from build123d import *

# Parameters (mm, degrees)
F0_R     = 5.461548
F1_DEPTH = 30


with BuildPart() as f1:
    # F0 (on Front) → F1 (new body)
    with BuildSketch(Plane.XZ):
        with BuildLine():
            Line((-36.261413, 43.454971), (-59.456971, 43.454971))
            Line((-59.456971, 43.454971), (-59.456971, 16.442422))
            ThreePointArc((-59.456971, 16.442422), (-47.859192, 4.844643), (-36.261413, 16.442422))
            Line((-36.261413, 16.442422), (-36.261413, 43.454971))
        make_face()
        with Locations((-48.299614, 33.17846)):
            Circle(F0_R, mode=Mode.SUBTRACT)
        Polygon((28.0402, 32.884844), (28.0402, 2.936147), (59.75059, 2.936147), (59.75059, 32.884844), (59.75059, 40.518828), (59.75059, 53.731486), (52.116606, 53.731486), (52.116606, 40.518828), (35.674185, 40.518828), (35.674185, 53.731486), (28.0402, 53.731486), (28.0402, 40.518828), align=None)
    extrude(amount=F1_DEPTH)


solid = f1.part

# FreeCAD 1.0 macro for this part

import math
import FreeCAD as App
import Part
import Sketcher


def add_polygon(sketch, points):
    """Adds a closed chain of lines whose ends are joined by coincident constraints."""
    first, n = sketch.GeometryCount, len(points)
    for a, b in zip(points, points[1:] + points[:1]):
        sketch.addGeometry(Part.LineSegment(App.Vector(*a, 0), App.Vector(*b, 0)), False)
    for i in range(n):
        sketch.addConstraint(Sketcher.Constraint("Coincident", first + i, 2, first + (i + 1) % n, 1))

doc = App.newDocument("Part")
params = doc.addObject("Spreadsheet::Sheet", "Params")
for row, (alias, value) in enumerate([
    ("pad1_length", "30 mm"),
], start=1):
    params.set(f"A{row}", alias)
    params.set(f"B{row}", "=" + value)
    params.setAlias(f"B{row}", alias)

body = doc.addObject("PartDesign::Body", "Body")
body.AllowCompound = True

# Sketch on XZ plane
sketch1 = body.newObject("Sketcher::SketchObject", "Sketch")
sketch1.AttachmentSupport = (doc.getObject("XZ_Plane"), [""])
sketch1.MapMode = "FlatFace"
sketch1.addGeometry(Part.LineSegment(App.Vector(-36.261413, 43.454971, 0), App.Vector(-59.456971, 43.454971, 0)), False)  # 0
sketch1.addGeometry(Part.LineSegment(App.Vector(-59.456971, 43.454971, 0), App.Vector(-59.456971, 16.442422, 0)), False)  # 1
sketch1.addGeometry(Part.ArcOfCircle(Part.Circle(App.Vector(-47.859192, 16.442422, 0), App.Vector(0, 0, 1), 11.597779), math.radians(180), math.radians(360)), False)  # 2
sketch1.addGeometry(Part.LineSegment(App.Vector(-36.261413, 16.442422, 0), App.Vector(-36.261413, 43.454971, 0)), False)  # 3
sketch1.addGeometry(Part.Circle(App.Vector(-48.299614, 33.17846, 0), App.Vector(0, 0, 1), 5.461548), False)  # 4
add_polygon(sketch1, [(28.0402, 2.936147), (59.75059, 2.936147), (59.75059, 53.731486), (52.116606, 53.731486), (52.116606, 40.518828), (35.674185, 40.518828), (35.674185, 53.731486), (28.0402, 53.731486)])  # lines 5-12
sketch1.addConstraint([
    Sketcher.Constraint("Coincident", 0, 2, 1, 1),
    Sketcher.Constraint("Tangent", 1, 2, 2, 1),
    Sketcher.Constraint("Tangent", 2, 2, 3, 1),
    Sketcher.Constraint("Coincident", 3, 2, 0, 1),
    Sketcher.Constraint("Horizontal", 0),
    Sketcher.Constraint("Vertical", 1),
    Sketcher.Constraint("Vertical", 3),
    Sketcher.Constraint("Horizontal", 5),
    Sketcher.Constraint("Vertical", 6),
    Sketcher.Constraint("Horizontal", 7),
    Sketcher.Constraint("Vertical", 8),
    Sketcher.Constraint("Horizontal", 9),
    Sketcher.Constraint("Vertical", 10),
    Sketcher.Constraint("Horizontal", 11),
    Sketcher.Constraint("Vertical", 12),
    Sketcher.Constraint("Horizontal", 7, 2, 10, 2),
    Sketcher.Constraint("Equal", 7, 11),
    Sketcher.Constraint("Radius", 2, 11.597779),
    Sketcher.Constraint("Diameter", 4, 10.923096),
    Sketcher.Constraint("DistanceX", 5, 1, 5, 2, 31.71039),
    Sketcher.Constraint("DistanceX", 9, 2, 9, 1, 16.442421),
    Sketcher.Constraint("DistanceY", 1, 2, 1, 1, 27.012549),
    Sketcher.Constraint("DistanceY", 6, 1, 6, 2, 50.795339),
    Sketcher.Constraint("DistanceX", -1, 1, 11, 2, 28.0402),
    Sketcher.Constraint("DistanceX", 4, 3, 2, 2, 12.038201),
    Sketcher.Constraint("DistanceX", 3, 2, 9, 2, 71.935598),
    Sketcher.Constraint("DistanceY", 8, 2, 8, 1, 13.212658),
    Sketcher.Constraint("DistanceY", -1, 1, 4, 3, 33.17846),
    Sketcher.Constraint("DistanceY", -1, 1, 0, 2, 43.454971),
    Sketcher.Constraint("DistanceY", -1, 1, 5, 2, 2.936147),
])
pad1 = body.newObject("PartDesign::Pad", "Pad")
pad1.Profile = sketch1
pad1.setExpression("Length", "Params.pad1_length")

doc.recompute()
